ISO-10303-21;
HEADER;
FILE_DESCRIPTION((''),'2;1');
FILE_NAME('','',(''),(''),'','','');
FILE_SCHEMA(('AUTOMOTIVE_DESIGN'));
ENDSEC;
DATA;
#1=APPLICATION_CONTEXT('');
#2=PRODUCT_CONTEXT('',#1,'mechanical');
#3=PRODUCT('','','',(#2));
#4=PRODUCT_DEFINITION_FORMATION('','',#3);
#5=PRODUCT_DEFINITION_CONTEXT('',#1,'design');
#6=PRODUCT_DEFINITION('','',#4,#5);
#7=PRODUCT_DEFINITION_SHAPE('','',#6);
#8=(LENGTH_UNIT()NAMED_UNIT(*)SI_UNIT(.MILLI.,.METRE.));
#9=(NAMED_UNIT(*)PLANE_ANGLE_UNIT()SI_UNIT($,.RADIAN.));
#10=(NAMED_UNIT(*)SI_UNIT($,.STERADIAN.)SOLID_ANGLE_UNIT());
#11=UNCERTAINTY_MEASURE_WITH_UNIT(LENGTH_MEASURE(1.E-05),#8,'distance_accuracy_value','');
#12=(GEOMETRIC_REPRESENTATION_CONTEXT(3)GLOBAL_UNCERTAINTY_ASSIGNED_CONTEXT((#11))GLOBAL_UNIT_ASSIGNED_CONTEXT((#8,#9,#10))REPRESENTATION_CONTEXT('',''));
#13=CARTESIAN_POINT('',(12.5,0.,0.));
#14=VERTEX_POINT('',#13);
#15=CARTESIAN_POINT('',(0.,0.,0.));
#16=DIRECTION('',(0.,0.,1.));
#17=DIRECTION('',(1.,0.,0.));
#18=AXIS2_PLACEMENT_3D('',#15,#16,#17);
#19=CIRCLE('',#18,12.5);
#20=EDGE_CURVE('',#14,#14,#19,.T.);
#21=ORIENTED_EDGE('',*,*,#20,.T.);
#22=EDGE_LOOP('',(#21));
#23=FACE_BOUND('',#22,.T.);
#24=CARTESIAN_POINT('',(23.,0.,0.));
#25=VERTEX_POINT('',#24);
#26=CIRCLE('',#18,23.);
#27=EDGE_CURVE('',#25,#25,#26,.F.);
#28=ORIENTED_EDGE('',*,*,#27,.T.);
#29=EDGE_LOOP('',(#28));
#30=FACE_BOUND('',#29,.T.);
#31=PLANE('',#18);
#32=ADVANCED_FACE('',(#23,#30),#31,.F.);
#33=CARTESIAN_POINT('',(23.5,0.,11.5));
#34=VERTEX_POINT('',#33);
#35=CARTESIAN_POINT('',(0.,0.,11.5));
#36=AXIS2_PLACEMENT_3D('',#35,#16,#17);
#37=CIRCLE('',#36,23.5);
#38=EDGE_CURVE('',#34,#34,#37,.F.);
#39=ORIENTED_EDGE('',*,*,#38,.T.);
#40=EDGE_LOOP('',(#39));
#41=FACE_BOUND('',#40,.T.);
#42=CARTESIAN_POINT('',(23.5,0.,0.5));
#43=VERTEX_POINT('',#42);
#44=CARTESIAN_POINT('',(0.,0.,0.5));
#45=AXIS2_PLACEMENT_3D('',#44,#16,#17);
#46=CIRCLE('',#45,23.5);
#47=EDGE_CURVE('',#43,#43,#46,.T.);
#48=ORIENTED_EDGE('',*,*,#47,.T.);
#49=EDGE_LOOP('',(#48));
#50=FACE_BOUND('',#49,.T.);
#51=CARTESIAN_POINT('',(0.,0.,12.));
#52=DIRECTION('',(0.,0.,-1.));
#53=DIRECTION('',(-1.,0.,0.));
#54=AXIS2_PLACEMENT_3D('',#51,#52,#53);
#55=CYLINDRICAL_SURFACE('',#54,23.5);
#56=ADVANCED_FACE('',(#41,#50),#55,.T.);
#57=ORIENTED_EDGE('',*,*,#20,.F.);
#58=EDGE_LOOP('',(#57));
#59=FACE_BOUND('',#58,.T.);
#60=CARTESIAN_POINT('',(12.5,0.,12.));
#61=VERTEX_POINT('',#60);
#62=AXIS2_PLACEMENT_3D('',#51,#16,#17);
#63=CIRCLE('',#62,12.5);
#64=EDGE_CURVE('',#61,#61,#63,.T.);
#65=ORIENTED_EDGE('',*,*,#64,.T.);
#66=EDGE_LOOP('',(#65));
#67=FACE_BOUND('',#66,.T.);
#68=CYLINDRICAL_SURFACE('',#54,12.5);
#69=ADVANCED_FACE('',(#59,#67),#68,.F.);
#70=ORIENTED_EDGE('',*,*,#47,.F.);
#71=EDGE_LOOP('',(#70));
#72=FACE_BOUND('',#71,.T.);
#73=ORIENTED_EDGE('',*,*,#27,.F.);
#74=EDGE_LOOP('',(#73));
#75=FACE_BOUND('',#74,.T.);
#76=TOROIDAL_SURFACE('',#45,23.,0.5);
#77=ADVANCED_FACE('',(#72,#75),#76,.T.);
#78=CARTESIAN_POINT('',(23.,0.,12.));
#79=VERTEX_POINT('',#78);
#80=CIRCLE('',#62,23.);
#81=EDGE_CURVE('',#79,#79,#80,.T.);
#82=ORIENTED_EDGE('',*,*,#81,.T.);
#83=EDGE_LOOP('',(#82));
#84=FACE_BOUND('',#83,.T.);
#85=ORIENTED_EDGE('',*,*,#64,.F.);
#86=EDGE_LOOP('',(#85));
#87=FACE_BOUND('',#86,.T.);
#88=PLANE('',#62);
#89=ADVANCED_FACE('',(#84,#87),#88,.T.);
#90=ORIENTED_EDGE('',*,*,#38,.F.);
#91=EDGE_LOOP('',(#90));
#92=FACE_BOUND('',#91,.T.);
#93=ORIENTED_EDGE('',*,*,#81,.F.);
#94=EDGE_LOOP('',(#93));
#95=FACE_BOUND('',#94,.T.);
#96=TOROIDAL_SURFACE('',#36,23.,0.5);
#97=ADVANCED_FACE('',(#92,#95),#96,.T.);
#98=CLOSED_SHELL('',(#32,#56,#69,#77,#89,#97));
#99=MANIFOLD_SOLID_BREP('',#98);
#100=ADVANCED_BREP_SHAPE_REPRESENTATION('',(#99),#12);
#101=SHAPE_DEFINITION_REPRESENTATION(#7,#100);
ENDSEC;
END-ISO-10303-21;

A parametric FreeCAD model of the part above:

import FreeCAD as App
import Part
import Sketcher

V = App.Vector


def edges_at(feature, points):
    """Names of the edges that pass closest to the given points."""
    edges = feature.Shape.Edges
    near = lambda p: min(range(len(edges)), key=lambda i: edges[i].distToShape(Part.Vertex(*p))[0])
    return sorted({f"Edge{near(p) + 1}" for p in points})

doc = App.newDocument("Part")
body = doc.addObject("PartDesign::Body", "Body")

sketch1 = doc.addObject("Sketcher::SketchObject", "Sketch")
body.addObject(sketch1)
sketch1.AttachmentSupport = (doc.XY_Plane, [""])
sketch1.MapMode = "FlatFace"
sketch1.addGeometry(Part.Circle(V(0, 0, 0), V(0, 0, 1), 24), False)
sketch1.addGeometry(Part.Circle(V(0, 0, 0), V(0, 0, 1), 12), False)
sketch1.addConstraint(Sketcher.Constraint("Coincident", 0, 3, -1, 1))
sketch1.addConstraint(Sketcher.Constraint("Coincident", 1, 3, -1, 1))
sketch1.addConstraint(Sketcher.Constraint("Diameter", 0, 47.0))
sketch1.addConstraint(Sketcher.Constraint("Diameter", 1, 25.0))
pad1 = doc.addObject("PartDesign::Pad", "Pad")
body.addObject(pad1)
pad1.Profile = sketch1
pad1.Length = 12
doc.recompute()

fillet = doc.addObject("PartDesign::Fillet", "Fillet")
body.addObject(fillet)
fillet.Base = (pad1, edges_at(pad1, [(-23.5, 0, 0), (-23.5, 0, 12)]))
fillet.Radius = 0.5

doc.recompute()
